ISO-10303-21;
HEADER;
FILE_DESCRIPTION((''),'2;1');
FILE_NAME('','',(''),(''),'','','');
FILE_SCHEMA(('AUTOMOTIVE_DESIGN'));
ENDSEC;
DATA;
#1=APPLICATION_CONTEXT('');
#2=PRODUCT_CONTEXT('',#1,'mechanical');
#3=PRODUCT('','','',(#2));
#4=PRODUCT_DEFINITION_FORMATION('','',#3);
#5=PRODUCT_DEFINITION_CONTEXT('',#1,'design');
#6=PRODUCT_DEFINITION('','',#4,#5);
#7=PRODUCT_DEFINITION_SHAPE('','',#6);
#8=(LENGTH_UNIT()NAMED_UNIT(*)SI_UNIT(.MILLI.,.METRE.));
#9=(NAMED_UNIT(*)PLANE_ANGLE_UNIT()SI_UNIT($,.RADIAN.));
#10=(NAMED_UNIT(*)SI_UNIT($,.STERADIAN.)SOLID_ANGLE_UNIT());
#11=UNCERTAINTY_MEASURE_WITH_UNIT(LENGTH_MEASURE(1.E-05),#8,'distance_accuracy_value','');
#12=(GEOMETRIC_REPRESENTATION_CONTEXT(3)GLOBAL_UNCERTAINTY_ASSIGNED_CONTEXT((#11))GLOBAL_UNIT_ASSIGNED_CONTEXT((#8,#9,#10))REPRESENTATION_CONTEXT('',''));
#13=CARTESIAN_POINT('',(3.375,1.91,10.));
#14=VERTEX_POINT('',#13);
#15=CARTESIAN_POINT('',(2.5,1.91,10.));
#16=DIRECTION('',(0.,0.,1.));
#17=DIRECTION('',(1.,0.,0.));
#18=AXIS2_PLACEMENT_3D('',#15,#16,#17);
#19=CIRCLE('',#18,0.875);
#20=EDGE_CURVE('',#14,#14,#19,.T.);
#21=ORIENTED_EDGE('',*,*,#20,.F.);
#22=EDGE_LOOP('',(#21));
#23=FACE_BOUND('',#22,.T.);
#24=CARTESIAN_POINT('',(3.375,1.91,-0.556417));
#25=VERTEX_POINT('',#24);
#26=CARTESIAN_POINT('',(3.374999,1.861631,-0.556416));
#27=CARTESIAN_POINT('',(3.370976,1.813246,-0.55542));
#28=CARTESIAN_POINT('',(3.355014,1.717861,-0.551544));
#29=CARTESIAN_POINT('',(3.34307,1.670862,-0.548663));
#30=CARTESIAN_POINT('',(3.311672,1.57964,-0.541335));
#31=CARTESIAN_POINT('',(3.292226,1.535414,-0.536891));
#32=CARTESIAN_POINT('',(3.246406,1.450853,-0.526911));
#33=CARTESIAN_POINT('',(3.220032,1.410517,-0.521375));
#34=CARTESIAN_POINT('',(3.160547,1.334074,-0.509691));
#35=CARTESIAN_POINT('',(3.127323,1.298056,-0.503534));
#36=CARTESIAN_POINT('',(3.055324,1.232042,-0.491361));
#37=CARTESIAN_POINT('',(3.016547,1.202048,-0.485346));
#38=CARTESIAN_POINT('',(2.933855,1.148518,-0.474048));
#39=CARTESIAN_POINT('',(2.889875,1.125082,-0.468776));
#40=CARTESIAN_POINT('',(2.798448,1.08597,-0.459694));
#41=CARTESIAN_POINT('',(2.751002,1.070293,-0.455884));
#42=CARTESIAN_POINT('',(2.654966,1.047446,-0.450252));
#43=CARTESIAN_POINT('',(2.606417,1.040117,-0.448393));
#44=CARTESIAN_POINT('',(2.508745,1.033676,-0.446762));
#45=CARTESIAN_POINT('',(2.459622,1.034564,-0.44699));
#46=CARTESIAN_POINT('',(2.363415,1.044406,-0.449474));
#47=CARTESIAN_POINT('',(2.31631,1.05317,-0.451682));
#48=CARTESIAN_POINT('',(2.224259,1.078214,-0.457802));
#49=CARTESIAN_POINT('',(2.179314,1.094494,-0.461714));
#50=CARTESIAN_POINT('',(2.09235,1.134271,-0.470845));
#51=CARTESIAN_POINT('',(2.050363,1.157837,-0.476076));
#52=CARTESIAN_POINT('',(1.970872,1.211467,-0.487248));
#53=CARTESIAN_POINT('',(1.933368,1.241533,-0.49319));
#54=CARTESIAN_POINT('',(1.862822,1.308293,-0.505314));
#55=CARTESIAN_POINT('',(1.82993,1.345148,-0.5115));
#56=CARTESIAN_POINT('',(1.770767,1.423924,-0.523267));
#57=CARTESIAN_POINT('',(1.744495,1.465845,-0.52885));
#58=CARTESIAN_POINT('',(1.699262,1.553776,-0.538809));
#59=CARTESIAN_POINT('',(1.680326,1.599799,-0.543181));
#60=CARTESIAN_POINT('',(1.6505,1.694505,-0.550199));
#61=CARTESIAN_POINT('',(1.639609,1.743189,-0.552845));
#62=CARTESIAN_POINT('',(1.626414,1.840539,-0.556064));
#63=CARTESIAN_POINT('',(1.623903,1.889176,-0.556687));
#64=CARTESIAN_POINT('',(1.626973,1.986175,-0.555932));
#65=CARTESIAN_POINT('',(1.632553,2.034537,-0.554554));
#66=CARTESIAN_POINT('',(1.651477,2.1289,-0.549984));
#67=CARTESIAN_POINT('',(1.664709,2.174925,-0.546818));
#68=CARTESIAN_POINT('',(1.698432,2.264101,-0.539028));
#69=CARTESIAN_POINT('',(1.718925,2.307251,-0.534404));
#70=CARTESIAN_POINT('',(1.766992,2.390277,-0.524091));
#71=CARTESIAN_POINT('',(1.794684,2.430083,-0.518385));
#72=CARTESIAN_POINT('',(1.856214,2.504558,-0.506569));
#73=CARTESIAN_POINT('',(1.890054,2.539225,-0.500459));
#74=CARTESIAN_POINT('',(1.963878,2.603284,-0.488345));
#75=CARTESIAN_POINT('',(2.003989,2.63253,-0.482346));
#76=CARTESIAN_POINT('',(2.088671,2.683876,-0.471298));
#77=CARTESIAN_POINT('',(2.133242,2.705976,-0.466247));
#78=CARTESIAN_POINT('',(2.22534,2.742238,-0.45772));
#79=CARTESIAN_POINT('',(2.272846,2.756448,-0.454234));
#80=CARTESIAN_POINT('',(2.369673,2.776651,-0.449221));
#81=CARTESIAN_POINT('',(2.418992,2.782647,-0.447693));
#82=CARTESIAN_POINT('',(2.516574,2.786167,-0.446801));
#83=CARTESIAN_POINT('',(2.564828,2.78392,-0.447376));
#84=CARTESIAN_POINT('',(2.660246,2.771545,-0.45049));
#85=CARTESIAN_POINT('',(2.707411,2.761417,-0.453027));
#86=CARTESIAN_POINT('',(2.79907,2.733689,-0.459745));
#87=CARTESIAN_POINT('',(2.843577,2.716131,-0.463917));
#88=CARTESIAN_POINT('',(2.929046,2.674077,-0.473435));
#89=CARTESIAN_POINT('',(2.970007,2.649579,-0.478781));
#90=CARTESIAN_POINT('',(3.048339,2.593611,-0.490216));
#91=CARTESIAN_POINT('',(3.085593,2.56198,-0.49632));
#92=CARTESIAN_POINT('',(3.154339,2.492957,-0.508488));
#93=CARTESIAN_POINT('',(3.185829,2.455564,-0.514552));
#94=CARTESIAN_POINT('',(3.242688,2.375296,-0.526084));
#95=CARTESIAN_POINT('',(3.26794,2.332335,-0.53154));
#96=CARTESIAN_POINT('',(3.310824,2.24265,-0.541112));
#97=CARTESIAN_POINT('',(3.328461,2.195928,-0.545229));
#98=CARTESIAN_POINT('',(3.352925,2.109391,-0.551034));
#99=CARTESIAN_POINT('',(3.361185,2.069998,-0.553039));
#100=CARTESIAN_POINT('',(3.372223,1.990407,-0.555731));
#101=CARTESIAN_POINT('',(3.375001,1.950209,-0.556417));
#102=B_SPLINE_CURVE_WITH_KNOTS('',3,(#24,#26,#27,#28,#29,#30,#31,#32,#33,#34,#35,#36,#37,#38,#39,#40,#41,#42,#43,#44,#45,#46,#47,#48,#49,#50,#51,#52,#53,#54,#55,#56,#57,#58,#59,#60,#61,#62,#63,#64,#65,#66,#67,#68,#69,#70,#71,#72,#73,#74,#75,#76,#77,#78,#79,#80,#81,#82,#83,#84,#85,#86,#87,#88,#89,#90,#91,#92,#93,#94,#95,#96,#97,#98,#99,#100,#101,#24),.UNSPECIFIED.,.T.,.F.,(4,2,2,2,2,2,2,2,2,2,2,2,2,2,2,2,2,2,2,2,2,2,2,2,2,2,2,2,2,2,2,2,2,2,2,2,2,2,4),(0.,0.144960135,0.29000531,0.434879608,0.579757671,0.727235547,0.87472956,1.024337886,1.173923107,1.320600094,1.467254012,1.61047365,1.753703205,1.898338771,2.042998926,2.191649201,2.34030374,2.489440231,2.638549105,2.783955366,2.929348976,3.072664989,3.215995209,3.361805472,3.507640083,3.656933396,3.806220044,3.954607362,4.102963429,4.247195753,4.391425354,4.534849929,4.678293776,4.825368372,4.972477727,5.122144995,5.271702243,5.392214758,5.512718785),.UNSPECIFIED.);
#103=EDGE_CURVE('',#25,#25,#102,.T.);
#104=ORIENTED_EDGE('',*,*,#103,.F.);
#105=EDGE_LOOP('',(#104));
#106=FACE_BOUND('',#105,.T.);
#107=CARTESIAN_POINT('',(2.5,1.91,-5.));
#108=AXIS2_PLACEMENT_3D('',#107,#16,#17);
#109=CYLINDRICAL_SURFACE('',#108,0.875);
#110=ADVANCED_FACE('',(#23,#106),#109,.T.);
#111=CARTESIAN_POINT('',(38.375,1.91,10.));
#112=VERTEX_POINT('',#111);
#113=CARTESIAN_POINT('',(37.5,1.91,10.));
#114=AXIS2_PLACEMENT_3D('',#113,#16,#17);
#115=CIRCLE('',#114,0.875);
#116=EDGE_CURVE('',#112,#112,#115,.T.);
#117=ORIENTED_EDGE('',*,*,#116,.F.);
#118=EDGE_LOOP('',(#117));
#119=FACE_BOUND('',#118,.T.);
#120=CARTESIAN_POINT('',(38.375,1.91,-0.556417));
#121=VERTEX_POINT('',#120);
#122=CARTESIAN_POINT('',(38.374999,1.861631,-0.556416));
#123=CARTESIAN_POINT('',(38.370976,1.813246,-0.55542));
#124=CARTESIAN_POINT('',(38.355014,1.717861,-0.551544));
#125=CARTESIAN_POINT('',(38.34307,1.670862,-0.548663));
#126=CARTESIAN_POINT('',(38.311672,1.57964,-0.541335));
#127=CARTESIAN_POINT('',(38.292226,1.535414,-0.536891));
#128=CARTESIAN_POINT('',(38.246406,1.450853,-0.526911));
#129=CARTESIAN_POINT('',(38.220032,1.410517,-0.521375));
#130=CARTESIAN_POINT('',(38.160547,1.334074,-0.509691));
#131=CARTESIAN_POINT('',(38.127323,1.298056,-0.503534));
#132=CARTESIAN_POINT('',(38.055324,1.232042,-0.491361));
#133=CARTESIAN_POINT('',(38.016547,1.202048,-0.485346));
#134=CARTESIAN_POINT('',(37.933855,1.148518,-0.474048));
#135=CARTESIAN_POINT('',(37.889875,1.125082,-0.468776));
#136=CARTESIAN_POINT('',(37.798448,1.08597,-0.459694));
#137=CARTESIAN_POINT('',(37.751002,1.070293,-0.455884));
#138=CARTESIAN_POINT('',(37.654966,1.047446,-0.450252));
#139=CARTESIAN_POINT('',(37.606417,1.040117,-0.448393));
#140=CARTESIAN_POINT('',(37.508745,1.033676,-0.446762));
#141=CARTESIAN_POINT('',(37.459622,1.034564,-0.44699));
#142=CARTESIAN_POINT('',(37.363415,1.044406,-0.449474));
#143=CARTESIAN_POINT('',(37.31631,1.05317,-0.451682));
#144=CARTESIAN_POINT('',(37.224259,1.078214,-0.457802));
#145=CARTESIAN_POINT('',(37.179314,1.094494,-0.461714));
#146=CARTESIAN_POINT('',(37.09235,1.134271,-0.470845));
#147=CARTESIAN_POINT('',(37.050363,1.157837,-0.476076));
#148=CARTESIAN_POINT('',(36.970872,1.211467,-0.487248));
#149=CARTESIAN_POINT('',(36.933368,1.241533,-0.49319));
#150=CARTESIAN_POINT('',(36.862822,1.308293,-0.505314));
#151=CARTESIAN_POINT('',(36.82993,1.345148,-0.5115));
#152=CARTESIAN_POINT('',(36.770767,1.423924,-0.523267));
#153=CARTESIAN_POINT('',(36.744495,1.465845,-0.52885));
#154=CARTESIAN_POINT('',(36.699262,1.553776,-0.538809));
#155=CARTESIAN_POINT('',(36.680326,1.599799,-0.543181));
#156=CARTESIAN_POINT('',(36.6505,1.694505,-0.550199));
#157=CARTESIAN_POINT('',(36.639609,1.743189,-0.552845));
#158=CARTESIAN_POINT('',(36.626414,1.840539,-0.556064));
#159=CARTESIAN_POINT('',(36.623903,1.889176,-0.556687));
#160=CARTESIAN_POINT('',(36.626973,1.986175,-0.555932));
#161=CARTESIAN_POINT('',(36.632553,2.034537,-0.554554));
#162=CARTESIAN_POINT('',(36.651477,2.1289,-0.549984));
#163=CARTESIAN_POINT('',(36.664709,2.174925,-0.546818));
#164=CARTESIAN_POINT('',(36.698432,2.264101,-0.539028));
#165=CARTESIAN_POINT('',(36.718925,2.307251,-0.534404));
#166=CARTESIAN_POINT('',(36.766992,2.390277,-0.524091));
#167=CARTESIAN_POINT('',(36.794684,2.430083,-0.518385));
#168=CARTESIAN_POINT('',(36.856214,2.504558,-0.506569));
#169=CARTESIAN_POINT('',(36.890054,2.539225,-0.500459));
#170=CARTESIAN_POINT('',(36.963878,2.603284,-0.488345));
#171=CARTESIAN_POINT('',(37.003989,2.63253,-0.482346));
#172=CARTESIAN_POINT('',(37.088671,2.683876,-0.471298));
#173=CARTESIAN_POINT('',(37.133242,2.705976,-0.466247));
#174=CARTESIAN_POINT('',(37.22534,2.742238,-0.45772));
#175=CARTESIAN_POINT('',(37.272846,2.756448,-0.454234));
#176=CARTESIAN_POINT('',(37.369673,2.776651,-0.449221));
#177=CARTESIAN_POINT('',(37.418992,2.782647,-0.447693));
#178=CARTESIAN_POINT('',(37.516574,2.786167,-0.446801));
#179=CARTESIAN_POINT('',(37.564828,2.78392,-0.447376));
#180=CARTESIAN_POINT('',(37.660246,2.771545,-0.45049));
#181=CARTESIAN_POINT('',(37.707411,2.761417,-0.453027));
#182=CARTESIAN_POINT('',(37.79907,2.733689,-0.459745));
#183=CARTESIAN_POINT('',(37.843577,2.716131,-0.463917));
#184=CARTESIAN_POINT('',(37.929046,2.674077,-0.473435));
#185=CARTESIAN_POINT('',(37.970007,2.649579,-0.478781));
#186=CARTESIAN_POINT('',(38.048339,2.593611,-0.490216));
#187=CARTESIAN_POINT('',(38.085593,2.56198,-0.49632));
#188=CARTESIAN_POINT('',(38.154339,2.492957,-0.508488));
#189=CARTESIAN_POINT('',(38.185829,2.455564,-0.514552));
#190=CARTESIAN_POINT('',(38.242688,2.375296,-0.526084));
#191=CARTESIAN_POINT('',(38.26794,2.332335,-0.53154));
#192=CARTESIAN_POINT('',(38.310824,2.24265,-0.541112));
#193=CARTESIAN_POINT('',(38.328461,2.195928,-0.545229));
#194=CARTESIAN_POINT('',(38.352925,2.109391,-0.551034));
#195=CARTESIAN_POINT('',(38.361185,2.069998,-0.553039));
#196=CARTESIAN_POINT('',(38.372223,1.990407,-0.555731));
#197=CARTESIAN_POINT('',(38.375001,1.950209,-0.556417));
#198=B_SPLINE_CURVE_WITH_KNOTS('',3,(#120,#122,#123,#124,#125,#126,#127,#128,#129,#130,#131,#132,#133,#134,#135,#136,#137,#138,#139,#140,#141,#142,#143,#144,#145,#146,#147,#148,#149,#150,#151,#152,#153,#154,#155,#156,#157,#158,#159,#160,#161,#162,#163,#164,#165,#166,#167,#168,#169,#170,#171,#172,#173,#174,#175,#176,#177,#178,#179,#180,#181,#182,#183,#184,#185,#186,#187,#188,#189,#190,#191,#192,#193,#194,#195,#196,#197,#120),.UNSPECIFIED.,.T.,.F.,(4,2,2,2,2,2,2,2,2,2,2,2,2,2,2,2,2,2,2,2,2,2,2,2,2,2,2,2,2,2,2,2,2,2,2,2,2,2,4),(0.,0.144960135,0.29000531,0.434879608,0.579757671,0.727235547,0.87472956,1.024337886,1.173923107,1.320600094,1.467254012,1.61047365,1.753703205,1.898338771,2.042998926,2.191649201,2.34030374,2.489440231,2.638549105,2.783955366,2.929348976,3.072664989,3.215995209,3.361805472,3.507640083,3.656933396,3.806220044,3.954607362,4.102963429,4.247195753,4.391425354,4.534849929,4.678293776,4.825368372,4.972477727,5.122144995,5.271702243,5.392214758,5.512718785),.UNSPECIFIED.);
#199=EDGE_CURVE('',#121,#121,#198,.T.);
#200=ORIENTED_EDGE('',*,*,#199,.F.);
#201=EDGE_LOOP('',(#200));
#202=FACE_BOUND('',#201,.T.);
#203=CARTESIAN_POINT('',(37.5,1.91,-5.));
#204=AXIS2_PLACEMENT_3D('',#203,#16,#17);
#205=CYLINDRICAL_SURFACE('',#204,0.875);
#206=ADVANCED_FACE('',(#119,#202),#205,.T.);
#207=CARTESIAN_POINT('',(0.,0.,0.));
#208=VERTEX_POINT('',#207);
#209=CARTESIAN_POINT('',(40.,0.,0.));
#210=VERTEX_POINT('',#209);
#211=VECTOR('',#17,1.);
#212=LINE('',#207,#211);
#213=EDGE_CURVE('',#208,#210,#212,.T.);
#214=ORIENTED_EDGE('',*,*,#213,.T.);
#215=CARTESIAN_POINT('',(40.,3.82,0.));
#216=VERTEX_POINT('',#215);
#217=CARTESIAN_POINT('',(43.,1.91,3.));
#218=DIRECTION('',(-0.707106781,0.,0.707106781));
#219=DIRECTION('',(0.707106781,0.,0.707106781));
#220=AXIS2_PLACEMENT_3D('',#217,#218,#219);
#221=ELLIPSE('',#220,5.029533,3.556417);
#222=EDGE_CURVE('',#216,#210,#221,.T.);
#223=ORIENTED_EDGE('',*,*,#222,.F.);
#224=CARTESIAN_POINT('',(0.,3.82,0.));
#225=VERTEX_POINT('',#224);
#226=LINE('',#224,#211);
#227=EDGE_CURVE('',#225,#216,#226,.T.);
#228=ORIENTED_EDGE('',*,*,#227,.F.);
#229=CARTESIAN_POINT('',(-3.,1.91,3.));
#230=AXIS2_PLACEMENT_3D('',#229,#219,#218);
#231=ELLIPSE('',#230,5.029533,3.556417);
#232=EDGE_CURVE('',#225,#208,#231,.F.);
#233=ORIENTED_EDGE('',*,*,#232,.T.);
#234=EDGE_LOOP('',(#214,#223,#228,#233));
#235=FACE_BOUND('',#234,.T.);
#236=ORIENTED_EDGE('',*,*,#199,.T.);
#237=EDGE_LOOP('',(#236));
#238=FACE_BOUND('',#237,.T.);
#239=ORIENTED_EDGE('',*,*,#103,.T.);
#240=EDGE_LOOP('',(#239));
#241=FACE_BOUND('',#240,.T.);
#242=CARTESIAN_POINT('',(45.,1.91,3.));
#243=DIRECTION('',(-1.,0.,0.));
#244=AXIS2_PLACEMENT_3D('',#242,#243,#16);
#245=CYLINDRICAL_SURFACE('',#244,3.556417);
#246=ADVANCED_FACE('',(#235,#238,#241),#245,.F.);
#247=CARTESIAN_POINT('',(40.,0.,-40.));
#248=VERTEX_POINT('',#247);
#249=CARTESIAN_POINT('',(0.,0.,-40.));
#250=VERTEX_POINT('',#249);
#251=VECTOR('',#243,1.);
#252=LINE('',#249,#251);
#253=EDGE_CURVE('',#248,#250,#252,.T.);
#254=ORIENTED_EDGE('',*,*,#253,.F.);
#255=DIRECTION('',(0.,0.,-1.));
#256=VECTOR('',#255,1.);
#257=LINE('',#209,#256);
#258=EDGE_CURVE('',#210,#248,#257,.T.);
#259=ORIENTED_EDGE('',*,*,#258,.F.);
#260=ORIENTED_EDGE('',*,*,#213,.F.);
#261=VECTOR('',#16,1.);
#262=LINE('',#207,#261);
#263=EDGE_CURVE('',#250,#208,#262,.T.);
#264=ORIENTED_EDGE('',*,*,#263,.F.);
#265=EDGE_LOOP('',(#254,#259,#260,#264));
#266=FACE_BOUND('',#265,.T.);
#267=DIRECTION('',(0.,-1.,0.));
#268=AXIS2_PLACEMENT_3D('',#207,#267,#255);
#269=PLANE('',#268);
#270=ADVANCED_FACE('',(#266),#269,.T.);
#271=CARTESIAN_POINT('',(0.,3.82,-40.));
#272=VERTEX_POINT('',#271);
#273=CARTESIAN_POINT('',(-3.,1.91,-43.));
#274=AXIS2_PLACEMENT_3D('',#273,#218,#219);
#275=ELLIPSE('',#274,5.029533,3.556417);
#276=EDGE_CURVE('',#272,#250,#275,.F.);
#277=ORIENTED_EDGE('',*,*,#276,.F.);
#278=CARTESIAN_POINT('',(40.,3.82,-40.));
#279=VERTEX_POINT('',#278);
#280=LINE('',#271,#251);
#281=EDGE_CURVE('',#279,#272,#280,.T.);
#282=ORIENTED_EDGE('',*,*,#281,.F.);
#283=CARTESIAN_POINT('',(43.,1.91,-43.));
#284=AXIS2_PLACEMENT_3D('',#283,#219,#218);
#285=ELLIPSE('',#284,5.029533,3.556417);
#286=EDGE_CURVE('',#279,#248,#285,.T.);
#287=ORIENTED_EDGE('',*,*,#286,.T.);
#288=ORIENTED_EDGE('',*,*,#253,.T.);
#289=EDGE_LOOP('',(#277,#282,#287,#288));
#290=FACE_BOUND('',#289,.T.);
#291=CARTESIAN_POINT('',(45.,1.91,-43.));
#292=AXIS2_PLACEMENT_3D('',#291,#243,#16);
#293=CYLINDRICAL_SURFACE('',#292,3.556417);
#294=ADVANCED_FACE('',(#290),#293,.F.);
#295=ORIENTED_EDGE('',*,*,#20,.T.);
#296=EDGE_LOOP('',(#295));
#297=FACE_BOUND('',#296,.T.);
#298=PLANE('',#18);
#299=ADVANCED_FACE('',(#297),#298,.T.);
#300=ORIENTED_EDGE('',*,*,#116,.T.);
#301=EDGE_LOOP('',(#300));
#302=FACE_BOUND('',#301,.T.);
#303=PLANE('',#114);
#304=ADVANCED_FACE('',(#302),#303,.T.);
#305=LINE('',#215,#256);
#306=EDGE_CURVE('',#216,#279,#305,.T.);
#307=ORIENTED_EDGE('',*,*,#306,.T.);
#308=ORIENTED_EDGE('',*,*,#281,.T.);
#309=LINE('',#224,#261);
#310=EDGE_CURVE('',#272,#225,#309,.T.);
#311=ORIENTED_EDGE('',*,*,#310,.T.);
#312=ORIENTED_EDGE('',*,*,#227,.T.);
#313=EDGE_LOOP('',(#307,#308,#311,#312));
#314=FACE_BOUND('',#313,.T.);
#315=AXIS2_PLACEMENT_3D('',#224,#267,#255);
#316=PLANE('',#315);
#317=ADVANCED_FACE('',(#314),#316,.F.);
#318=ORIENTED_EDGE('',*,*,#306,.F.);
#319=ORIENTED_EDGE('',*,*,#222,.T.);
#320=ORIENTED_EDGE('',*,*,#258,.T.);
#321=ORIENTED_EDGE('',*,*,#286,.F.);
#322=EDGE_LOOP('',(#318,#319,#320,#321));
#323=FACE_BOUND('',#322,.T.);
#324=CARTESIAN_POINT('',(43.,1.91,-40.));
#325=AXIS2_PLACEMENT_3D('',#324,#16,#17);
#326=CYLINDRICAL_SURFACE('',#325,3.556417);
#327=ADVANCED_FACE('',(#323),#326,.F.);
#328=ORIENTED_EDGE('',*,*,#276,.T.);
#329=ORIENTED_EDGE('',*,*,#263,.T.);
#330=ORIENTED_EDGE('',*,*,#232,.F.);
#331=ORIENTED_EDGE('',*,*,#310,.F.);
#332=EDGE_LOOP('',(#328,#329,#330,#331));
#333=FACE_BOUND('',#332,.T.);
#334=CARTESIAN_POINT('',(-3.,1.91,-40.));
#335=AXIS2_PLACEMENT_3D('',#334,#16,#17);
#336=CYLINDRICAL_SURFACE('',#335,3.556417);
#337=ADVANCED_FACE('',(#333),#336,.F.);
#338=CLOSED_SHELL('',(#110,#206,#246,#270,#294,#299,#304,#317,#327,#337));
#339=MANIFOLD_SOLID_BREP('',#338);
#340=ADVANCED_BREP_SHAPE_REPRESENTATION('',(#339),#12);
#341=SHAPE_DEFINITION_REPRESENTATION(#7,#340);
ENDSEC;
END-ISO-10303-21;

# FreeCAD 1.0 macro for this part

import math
import FreeCAD as App
import Part
import Sketcher

V = App.Vector
Q = App.Units.Quantity

doc = App.newDocument("Part")
body = doc.addObject("PartDesign::Body", "Body")

# Sketch on XZ plane
sketch1 = body.newObject("Sketcher::SketchObject", "Sketch")
sketch1.AttachmentSupport = (doc.getObject("XZ_Plane"), [""])
sketch1.MapMode = "FlatFace"
sketch1.addGeometry([
    Part.LineSegment(V(0, -40, 0), V(0, 0, 0)),
    Part.LineSegment(V(0, 0, 0), V(40, 0, 0)),
    Part.LineSegment(V(40, 0, 0), V(40, -40, 0)),
    Part.LineSegment(V(40, -40, 0), V(0, -40, 0)),
], False)
sketch1.addConstraint([
    Sketcher.Constraint("Coincident", 0, 2, 1, 1),
    Sketcher.Constraint("Coincident", 1, 2, 2, 1),
    Sketcher.Constraint("Coincident", 2, 2, 3, 1),
    Sketcher.Constraint("Coincident", 3, 2, 0, 1),
    Sketcher.Constraint("Vertical", 0),
    Sketcher.Constraint("Horizontal", 1),
    Sketcher.Constraint("Vertical", 2),
    Sketcher.Constraint("Horizontal", 3),
    Sketcher.Constraint("Coincident", 0, 2, -1, 1),
    Sketcher.Constraint("Equal", 3, 0),
    Sketcher.Constraint("DistanceX", 1, 1, 1, 2, Q("40 mm")),
])
pad1 = body.newObject("PartDesign::Pad", "Pad")
pad1.Profile = sketch1
pad1.Length = 3.82
pad1.Reversed = True

# Sketch on XY plane
sketch2 = body.newObject("Sketcher::SketchObject", "Sketch001")
sketch2.AttachmentSupport = (doc.getObject("XY_Plane"), [""])
sketch2.MapMode = "FlatFace"
sketch2.addGeometry([
    Part.ArcOfCircle(Part.Circle(V(-3, 1.9, 0), V(0, 0, 1), 3.6), math.radians(-32), math.radians(32)),  # 0
    Part.LineSegment(V(0, 3.8, 0), V(-3, 1.9, 0)),  # 1
    Part.LineSegment(V(-3, 1.9, 0), V(0, 0, 0)),  # 2
    Part.LineSegment(V(40, 0, 0), V(43, 1.9, 0)),  # 3
    Part.LineSegment(V(43, 1.9, 0), V(40, 3.8, 0)),  # 4
    Part.ArcOfCircle(Part.Circle(V(43, 1.9, 0), V(0, 0, 1), 3.6), math.radians(148), math.radians(212)),  # 5
], False)
sketch2.addConstraint([
    Sketcher.Constraint("Coincident", 0, 2, 1, 1),
    Sketcher.Constraint("Coincident", 1, 2, 2, 1),
    Sketcher.Constraint("Coincident", 2, 2, 0, 1),
    Sketcher.Constraint("Coincident", 3, 2, 4, 1),
    Sketcher.Constraint("Coincident", 4, 2, 5, 1),
    Sketcher.Constraint("Coincident", 5, 2, 3, 1),
    Sketcher.Constraint("Coincident", 2, 2, -1, 1),
    Sketcher.Constraint("Coincident", 1, 2, 0, 3),
    Sketcher.Constraint("Coincident", 3, 2, 5, 3),
    Sketcher.Constraint("Equal", 0, 5),
    Sketcher.Constraint("PointOnObject", 0, 2, -2),
    Sketcher.Constraint("PointOnObject", 5, 2, -1),
    Sketcher.Constraint("Parallel", 1, 3),
    Sketcher.Constraint("Parallel", 2, 4),
    Sketcher.Constraint("DistanceX", 0, 3, -1, 1, Q("3 mm")),
    Sketcher.Constraint("DistanceX", -1, 1, 5, 3, Q("43 mm")),
    Sketcher.Constraint("DistanceY", -1, 1, 0, 3, Q("1.91 mm")),
])
pocket1 = body.newObject("PartDesign::Pocket", "Pocket")
pocket1.Profile = sketch2
pocket1.Type = "ThroughAll"

# Sketch on YZ plane
sketch3 = body.newObject("Sketcher::SketchObject", "Sketch002")
sketch3.AttachmentSupport = (doc.getObject("YZ_Plane"), [""])
sketch3.MapMode = "FlatFace"
sketch3.addGeometry([
    Part.LineSegment(V(1.9, -43, 0), V(3.8, -40, 0)),  # 0
    Part.ArcOfCircle(Part.Circle(V(1.9, -43, 0), V(0, 0, 1), 3.6), math.radians(58), math.radians(122)),  # 1
    Part.LineSegment(V(0, -40, 0), V(1.9, -43, 0)),  # 2
    Part.LineSegment(V(3.8, 0, 0), V(1.9, 3, 0)),  # 3
    Part.LineSegment(V(1.9, 3, 0), V(0, 0, 0)),  # 4
    Part.ArcOfCircle(Part.Circle(V(1.9, 3, 0), V(0, 0, 1), 3.6), math.radians(-122), math.radians(-58)),  # 5
], False)
sketch3.addConstraint([
    Sketcher.Constraint("Coincident", 0, 2, 1, 1),
    Sketcher.Constraint("Coincident", 1, 2, 2, 1),
    Sketcher.Constraint("Coincident", 2, 2, 0, 1),
    Sketcher.Constraint("Coincident", 3, 2, 4, 1),
    Sketcher.Constraint("Coincident", 4, 2, 5, 1),
    Sketcher.Constraint("Coincident", 5, 2, 3, 1),
    Sketcher.Constraint("Coincident", 4, 2, -1, 1),
    Sketcher.Constraint("Coincident", 2, 2, 1, 3),
    Sketcher.Constraint("Coincident", 3, 2, 5, 3),
    Sketcher.Constraint("Equal", 1, 5),
    Sketcher.Constraint("PointOnObject", 1, 2, -2),
    Sketcher.Constraint("PointOnObject", 5, 2, -1),
    Sketcher.Constraint("Parallel", 2, 3),
    Sketcher.Constraint("Parallel", 0, 4),
    Sketcher.Constraint("DistanceY", 1, 3, -1, 1, Q("43 mm")),
    Sketcher.Constraint("DistanceY", -1, 1, 5, 3, Q("3 mm")),
    Sketcher.Constraint("DistanceX", -1, 1, 1, 3, Q("1.91 mm")),
])
pocket2 = body.newObject("PartDesign::Pocket", "Pocket001")
pocket2.Profile = sketch3
pocket2.Length = 45
pocket2.Reversed = True

# Sketch on XY plane
sketch4 = body.newObject("Sketcher::SketchObject", "Sketch003")
sketch4.AttachmentSupport = (doc.getObject("XY_Plane"), [""])
sketch4.MapMode = "FlatFace"
sketch4.addGeometry(Part.Circle(V(2.5, 1.9, 0), V(0, 0, 1), 0.9), False)
sketch4.addConstraint([
    Sketcher.Constraint("Diameter", 0, Q("1.75 mm")),
    Sketcher.Constraint("DistanceX", -1, 1, 0, 3, Q("2.5 mm")),
    Sketcher.Constraint("DistanceY", -1, 1, 0, 3, Q("1.91 mm")),
])
pad2 = body.newObject("PartDesign::Pad", "Pad001")
pad2.Profile = sketch4
pad2.Type = "TwoLengths"
pad2.Length = 10
pad2.Length2 = 5

# Sketch on XY plane
sketch5 = body.newObject("Sketcher::SketchObject", "Sketch004")
sketch5.AttachmentSupport = (doc.getObject("XY_Plane"), [""])
sketch5.MapMode = "FlatFace"
sketch5.addGeometry(Part.Circle(V(37.5, 1.9, 0), V(0, 0, 1), 0.9), False)
sketch5.addConstraint([
    Sketcher.Constraint("Diameter", 0, Q("1.75 mm")),
    Sketcher.Constraint("DistanceX", -1, 1, 0, 3, Q("37.5 mm")),
    Sketcher.Constraint("DistanceY", -1, 1, 0, 3, Q("1.91 mm")),
])
pad3 = body.newObject("PartDesign::Pad", "Pad002")
pad3.Profile = sketch5
pad3.Type = "TwoLengths"
pad3.Length = 10
pad3.Length2 = 5

doc.recompute()
